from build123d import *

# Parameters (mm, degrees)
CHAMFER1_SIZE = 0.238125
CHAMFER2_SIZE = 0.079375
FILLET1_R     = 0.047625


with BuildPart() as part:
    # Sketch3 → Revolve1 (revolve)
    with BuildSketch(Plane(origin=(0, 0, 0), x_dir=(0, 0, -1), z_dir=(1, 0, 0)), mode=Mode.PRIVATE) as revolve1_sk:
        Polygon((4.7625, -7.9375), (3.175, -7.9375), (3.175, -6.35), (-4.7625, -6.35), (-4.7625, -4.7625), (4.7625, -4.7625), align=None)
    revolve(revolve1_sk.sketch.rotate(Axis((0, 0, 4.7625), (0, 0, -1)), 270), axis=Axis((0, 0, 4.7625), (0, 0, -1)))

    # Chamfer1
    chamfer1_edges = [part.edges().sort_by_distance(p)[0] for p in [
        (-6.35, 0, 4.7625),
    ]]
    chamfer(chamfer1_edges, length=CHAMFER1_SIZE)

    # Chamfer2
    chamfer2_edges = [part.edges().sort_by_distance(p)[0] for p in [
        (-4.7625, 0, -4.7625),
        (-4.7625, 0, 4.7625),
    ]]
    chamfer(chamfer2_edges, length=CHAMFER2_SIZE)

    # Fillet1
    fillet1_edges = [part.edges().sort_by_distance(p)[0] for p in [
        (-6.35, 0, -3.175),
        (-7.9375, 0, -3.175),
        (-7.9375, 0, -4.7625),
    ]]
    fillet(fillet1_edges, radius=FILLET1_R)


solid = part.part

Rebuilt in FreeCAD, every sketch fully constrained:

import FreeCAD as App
import Part
import Sketcher

V = App.Vector
Q = App.Units.Quantity


def edges_at(feature, points):
    """Names of the edges that pass closest to the given points."""
    edges = feature.Shape.Edges
    near = lambda p: min(range(len(edges)), key=lambda i: edges[i].distToShape(Part.Vertex(*p))[0])
    return sorted({f"Edge{near(p) + 1}" for p in points})


def add_polygon(sketch, points):
    """Adds a closed chain of lines whose ends are joined by coincident constraints."""
    first, n = sketch.GeometryCount, len(points)
    for a, b in zip(points, points[1:] + points[:1]):
        sketch.addGeometry(Part.LineSegment(App.Vector(*a, 0), App.Vector(*b, 0)), False)
    for i in range(n):
        sketch.addConstraint(Sketcher.Constraint("Coincident", first + i, 2, first + (i + 1) % n, 1))

doc = App.newDocument("Part")
body = doc.addObject("PartDesign::Body", "Body")

# Sketch on YZ plane
sketch1 = body.newObject("Sketcher::SketchObject", "Sketch")
sketch1.AttachmentSupport = (doc.getObject("YZ_Plane"), [""])
sketch1.MapMode = "FlatFace"
add_polygon(sketch1, [(-7.9, -3.2), (-7.9, -4.8), (-4.8, -4.8), (-4.8, 4.8), (-6.3, 4.8), (-6.3, -3.2)])  # lines 0-5
sketch1.addConstraint([
    Sketcher.Constraint("Vertical", 0),
    Sketcher.Constraint("Horizontal", 1),
    Sketcher.Constraint("Vertical", 2),
    Sketcher.Constraint("Horizontal", 3),
    Sketcher.Constraint("Vertical", 4),
    Sketcher.Constraint("Horizontal", 5),
    Sketcher.Constraint("Equal", 3, 5),
    Sketcher.Constraint("Equal", 5, 0),
    Sketcher.Constraint("DistanceX", 1, 1, 1, 2, Q("0.125 in")),
    Sketcher.Constraint("DistanceY", 2, 1, 2, 2, Q("0.375 in")),
    Sketcher.Constraint("DistanceX", 3, 2, -1, 1, Q("0.25 in")),
    Sketcher.Constraint("DistanceY", 0, 2, -1, 1, Q("0.1875 in")),
])
revolution = body.newObject("PartDesign::Revolution", "Revolution")
revolution.Profile = sketch1
revolution.ReferenceAxis = (sketch1, ["V_Axis"])
revolution.Angle = 360
doc.recompute()

chamfer = body.newObject("PartDesign::Chamfer", "Chamfer")
chamfer.Base = (revolution, edges_at(revolution, [(-6.35, 0, 4.763)]))
chamfer.Size = 0.238125
doc.recompute()

chamfer2 = body.newObject("PartDesign::Chamfer", "Chamfer001")
chamfer2.Base = (chamfer, edges_at(chamfer, [(-4.763, 0, -4.763), (-4.763, 0, 4.763)]))
chamfer2.Size = 0.079375
doc.recompute()

fillet = body.newObject("PartDesign::Fillet", "Fillet")
fillet.Base = (chamfer2, edges_at(chamfer2, [(-6.35, 0, -3.175), (-7.938, 0, -3.175), (-7.938, 0, -4.763)]))
fillet.Radius = 0.047625

doc.recompute()
